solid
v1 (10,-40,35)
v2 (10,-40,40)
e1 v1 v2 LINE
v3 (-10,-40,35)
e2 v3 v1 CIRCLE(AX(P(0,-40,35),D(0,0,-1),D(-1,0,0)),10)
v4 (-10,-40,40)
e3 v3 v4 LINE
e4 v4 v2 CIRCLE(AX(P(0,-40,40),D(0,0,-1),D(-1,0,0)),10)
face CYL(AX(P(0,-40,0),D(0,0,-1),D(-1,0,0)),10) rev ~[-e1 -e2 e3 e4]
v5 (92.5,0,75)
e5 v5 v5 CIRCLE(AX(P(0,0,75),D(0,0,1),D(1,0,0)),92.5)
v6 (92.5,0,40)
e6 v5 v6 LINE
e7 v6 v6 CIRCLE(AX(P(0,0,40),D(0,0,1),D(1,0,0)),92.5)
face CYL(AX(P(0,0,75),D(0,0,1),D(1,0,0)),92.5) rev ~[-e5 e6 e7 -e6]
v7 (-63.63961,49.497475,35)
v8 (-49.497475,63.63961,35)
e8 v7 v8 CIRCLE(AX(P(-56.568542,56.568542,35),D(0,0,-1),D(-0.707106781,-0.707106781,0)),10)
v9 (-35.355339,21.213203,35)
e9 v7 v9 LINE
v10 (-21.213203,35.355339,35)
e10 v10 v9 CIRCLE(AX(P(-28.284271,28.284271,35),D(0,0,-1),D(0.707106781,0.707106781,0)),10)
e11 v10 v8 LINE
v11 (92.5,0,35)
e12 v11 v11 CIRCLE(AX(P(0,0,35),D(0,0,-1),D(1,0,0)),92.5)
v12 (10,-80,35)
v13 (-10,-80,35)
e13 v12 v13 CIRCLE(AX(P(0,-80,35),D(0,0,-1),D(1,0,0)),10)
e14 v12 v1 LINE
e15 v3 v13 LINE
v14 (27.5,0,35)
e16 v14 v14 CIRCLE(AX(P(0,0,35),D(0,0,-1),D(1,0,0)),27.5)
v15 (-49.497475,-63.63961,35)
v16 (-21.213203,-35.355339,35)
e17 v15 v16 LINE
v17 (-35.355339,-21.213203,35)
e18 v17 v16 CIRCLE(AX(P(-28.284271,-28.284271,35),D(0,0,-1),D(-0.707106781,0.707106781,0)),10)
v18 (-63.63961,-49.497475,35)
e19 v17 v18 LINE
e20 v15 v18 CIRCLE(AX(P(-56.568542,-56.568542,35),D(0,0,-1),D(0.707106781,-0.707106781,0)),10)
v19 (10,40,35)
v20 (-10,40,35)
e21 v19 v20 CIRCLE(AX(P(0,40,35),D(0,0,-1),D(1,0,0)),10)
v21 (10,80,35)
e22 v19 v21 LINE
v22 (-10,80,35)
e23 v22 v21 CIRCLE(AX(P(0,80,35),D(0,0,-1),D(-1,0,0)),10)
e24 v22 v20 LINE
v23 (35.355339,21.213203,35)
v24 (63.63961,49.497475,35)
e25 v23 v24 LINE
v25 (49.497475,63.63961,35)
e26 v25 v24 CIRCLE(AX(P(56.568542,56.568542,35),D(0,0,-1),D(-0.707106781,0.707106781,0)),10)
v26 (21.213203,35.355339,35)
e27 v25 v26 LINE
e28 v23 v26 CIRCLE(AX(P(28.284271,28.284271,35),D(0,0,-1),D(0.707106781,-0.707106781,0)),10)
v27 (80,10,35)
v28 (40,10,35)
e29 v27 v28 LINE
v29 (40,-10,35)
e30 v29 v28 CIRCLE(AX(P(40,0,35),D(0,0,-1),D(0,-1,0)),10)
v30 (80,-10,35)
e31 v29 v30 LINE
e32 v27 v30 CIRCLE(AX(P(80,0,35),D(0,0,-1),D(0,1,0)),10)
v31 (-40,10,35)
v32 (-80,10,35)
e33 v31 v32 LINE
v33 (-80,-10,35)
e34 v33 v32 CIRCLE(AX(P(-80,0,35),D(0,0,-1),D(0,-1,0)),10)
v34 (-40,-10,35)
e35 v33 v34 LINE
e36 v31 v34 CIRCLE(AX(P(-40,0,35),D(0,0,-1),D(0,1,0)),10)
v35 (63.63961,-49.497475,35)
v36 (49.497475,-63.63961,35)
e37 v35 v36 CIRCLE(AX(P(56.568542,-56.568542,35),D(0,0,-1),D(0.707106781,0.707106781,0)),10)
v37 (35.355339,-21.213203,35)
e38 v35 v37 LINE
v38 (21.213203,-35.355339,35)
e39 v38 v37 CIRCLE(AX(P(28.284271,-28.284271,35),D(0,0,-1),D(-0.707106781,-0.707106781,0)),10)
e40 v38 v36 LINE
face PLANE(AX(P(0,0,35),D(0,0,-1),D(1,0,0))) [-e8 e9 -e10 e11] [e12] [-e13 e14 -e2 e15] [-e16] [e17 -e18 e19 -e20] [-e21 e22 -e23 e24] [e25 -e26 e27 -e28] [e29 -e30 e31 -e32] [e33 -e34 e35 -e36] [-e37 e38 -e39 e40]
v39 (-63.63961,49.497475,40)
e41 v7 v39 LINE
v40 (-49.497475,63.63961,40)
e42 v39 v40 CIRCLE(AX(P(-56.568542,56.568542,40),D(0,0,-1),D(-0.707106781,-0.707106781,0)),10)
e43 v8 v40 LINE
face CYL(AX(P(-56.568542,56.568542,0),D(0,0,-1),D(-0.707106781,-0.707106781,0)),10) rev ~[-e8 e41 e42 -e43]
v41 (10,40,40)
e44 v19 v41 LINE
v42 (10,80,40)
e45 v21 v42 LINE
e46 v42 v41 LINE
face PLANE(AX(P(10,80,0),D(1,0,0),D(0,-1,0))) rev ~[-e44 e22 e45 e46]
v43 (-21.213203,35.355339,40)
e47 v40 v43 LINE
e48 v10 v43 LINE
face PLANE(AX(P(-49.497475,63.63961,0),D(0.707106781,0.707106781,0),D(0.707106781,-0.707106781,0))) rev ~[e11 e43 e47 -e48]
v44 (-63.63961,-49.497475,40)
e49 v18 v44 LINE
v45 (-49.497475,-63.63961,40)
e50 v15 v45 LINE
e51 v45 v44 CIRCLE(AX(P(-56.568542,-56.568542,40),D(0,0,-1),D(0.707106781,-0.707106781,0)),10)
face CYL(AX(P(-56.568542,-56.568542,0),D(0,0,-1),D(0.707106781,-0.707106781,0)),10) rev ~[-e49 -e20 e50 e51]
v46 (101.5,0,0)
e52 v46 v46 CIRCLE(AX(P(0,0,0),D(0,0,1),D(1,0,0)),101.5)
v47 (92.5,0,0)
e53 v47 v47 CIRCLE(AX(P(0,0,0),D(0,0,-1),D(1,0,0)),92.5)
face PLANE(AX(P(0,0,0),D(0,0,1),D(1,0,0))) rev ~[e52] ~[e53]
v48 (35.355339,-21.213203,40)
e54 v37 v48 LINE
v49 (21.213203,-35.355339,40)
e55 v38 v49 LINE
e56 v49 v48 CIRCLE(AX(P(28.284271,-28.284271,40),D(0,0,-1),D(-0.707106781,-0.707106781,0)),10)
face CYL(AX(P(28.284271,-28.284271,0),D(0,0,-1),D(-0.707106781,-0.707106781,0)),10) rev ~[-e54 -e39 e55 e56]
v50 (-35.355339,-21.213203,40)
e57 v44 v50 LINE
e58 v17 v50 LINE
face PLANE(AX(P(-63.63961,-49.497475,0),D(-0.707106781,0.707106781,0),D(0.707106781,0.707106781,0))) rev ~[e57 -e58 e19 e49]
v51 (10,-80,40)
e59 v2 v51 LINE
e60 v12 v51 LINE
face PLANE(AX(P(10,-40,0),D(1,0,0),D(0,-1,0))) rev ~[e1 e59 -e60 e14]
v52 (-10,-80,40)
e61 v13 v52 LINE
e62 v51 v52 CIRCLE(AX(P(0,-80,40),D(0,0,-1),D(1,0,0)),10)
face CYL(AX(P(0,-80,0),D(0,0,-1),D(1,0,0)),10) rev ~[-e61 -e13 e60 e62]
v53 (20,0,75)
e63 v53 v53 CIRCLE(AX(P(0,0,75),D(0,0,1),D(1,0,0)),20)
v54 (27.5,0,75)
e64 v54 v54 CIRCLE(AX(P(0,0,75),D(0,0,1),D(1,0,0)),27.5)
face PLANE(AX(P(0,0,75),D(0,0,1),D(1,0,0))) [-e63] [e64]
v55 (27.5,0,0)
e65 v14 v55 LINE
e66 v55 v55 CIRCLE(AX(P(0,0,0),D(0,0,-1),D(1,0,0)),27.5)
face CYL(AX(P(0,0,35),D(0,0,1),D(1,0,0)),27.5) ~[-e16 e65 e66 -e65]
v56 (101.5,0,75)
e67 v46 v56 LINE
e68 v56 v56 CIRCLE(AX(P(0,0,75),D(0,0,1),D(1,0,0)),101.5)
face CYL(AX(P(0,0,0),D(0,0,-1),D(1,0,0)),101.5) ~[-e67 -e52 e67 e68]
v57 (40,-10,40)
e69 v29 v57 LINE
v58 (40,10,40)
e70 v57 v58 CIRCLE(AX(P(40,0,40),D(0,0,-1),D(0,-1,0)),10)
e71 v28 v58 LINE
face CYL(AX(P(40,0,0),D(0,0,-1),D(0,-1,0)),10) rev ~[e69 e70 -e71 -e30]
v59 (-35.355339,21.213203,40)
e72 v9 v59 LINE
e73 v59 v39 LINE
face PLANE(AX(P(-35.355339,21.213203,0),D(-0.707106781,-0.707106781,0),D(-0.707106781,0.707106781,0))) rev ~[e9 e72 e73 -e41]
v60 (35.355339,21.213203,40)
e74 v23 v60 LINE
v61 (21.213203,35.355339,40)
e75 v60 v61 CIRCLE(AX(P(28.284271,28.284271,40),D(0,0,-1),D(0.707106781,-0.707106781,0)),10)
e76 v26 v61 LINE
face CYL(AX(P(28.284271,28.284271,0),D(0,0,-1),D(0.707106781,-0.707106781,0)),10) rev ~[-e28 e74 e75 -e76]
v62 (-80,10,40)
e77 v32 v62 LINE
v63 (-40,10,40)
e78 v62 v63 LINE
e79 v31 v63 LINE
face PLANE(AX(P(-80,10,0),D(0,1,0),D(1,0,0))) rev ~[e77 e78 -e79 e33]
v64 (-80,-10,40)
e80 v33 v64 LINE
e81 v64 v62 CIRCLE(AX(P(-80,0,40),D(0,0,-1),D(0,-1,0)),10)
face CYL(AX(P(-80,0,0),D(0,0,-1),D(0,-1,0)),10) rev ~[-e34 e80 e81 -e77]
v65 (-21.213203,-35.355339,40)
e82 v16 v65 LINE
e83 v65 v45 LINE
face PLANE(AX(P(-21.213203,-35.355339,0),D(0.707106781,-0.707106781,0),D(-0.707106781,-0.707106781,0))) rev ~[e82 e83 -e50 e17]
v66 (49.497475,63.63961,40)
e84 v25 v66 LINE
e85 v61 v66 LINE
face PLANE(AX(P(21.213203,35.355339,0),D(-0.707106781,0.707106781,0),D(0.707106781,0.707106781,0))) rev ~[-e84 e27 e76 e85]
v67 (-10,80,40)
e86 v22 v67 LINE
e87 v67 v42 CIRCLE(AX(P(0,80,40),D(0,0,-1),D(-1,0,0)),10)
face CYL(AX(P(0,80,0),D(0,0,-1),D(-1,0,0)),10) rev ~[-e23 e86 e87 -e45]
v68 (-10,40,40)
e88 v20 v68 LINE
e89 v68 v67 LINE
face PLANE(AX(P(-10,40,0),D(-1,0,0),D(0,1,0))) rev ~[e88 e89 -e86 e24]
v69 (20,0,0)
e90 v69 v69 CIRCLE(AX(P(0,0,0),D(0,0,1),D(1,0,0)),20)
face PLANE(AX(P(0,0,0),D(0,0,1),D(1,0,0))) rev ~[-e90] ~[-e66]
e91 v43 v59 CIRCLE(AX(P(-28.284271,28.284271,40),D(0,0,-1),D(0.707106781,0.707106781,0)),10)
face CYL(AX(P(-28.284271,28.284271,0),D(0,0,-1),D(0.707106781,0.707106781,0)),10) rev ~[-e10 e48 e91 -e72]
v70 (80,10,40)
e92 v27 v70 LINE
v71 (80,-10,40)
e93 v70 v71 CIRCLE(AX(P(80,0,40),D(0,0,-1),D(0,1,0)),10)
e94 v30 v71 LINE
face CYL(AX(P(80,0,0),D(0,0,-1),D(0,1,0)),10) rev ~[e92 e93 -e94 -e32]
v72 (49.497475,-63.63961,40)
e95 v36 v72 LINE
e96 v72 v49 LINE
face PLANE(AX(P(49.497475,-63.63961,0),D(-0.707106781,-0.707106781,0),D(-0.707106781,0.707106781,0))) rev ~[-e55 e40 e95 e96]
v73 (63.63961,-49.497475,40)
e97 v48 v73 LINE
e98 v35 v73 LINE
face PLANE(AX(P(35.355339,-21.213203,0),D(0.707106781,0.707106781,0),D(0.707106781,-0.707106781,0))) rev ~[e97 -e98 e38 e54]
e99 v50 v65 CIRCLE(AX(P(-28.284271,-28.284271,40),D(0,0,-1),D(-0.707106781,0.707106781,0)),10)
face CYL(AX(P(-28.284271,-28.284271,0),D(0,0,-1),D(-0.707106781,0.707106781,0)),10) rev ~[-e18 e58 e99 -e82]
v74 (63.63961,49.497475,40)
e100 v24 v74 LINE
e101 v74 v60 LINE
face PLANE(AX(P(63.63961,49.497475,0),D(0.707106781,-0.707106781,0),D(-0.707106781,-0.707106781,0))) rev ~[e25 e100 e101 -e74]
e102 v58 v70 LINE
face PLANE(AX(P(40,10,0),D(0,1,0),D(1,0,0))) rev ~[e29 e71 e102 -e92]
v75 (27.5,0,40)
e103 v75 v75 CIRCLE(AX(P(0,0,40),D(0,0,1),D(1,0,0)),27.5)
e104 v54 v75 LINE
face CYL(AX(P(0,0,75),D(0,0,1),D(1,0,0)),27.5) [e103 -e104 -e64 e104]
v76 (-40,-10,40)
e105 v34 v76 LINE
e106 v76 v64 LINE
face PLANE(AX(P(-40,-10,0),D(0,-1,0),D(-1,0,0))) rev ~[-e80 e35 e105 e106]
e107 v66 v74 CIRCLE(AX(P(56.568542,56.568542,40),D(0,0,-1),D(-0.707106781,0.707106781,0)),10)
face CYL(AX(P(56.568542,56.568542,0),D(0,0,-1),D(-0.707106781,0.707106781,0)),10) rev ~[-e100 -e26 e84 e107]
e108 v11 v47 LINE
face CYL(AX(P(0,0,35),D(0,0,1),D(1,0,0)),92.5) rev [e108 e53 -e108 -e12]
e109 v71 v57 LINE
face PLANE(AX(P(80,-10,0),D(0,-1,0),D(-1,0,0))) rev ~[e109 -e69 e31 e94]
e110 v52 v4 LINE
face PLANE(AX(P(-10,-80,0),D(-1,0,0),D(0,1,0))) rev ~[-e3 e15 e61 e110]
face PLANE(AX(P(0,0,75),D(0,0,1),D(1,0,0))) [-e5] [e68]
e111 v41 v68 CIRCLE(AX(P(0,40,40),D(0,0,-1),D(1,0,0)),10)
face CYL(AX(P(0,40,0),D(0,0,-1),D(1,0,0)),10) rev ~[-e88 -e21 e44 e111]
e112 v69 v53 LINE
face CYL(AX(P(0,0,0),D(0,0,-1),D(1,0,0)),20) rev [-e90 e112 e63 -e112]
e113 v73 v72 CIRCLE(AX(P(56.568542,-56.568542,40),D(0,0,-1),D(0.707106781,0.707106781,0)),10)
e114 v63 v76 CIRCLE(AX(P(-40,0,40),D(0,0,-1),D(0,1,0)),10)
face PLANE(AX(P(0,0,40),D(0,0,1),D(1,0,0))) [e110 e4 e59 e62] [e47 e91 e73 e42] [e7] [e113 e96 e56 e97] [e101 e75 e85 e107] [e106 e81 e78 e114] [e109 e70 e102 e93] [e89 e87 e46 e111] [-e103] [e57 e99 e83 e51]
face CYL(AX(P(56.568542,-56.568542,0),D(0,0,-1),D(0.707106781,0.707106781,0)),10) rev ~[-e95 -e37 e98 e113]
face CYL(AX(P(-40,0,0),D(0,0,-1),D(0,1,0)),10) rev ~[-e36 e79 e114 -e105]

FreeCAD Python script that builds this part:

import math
import FreeCAD as App
import Part
import Sketcher
Q = App.Units.Quantity

doc = App.newDocument("Part")
body = doc.addObject("PartDesign::Body", "Body")

sketch1 = body.newObject("Sketcher::SketchObject", "Sketch")
sketch1.AttachmentSupport = (doc.getObject("XY_Plane"), [""])
sketch1.MapMode = "FlatFace"
sketch1.addGeometry(Part.Circle(App.Vector(0, 0, 0), App.Vector(0, 0, 1), 102), False)
sketch1.addGeometry(Part.ArcOfCircle(Part.Circle(App.Vector(-57, -57, 0), App.Vector(0, 0, 1), 10), math.radians(135), math.radians(315)), False)
sketch1.addGeometry(Part.LineSegment(App.Vector(-64, -49, 0), App.Vector(-35, -21, 0)), False)
sketch1.addGeometry(Part.ArcOfCircle(Part.Circle(App.Vector(-28, -28, 0), App.Vector(0, 0, 1), 10), math.radians(-45), math.radians(135)), False)
sketch1.addGeometry(Part.LineSegment(App.Vector(-21, -35, 0), App.Vector(-49, -64, 0)), False)
sketch1.addGeometry(Part.ArcOfCircle(Part.Circle(App.Vector(0, -80, 0), App.Vector(0, 0, 1), 10), math.radians(180), math.radians(360)), False)
sketch1.addGeometry(Part.LineSegment(App.Vector(-10, -80, 0), App.Vector(-10, -40, 0)), False)
sketch1.addGeometry(Part.ArcOfCircle(Part.Circle(App.Vector(0, -40, 0), App.Vector(0, 0, 1), 10), math.radians(0), math.radians(180)), False)
sketch1.addGeometry(Part.LineSegment(App.Vector(10, -40, 0), App.Vector(10, -80, 0)), False)
sketch1.addGeometry(Part.ArcOfCircle(Part.Circle(App.Vector(57, -57, 0), App.Vector(0, 0, 1), 10), math.radians(-135), math.radians(45)), False)
sketch1.addGeometry(Part.LineSegment(App.Vector(49, -64, 0), App.Vector(21, -35, 0)), False)
sketch1.addGeometry(Part.ArcOfCircle(Part.Circle(App.Vector(28, -28, 0), App.Vector(0, 0, 1), 10), math.radians(45), math.radians(225)), False)
sketch1.addGeometry(Part.LineSegment(App.Vector(35, -21, 0), App.Vector(64, -49, 0)), False)
sketch1.addGeometry(Part.ArcOfCircle(Part.Circle(App.Vector(-80, 0, 0), App.Vector(0, 0, 1), 10), math.radians(90), math.radians(270)), False)
sketch1.addGeometry(Part.LineSegment(App.Vector(-80, 10, 0), App.Vector(-40, 10, 0)), False)
sketch1.addGeometry(Part.ArcOfCircle(Part.Circle(App.Vector(-40, 0, 0), App.Vector(0, 0, 1), 10), math.radians(-90), math.radians(90)), False)
sketch1.addGeometry(Part.LineSegment(App.Vector(-40, -10, 0), App.Vector(-80, -10, 0)), False)
sketch1.addGeometry(Part.ArcOfCircle(Part.Circle(App.Vector(-57, 57, 0), App.Vector(0, 0, 1), 10), math.radians(45), math.radians(225)), False)
sketch1.addGeometry(Part.LineSegment(App.Vector(-49, 64, 0), App.Vector(-21, 35, 0)), False)
sketch1.addGeometry(Part.ArcOfCircle(Part.Circle(App.Vector(-28, 28, 0), App.Vector(0, 0, 1), 10), math.radians(-135), math.radians(45)), False)
sketch1.addGeometry(Part.LineSegment(App.Vector(-35, 21, 0), App.Vector(-64, 49, 0)), False)
sketch1.addGeometry(Part.Circle(App.Vector(0, 0, 0), App.Vector(0, 0, 1), 20), False)
sketch1.addGeometry(Part.ArcOfCircle(Part.Circle(App.Vector(57, 57, 0), App.Vector(0, 0, 1), 10), math.radians(-45), math.radians(135)), False)
sketch1.addGeometry(Part.LineSegment(App.Vector(64, 49, 0), App.Vector(35, 21, 0)), False)
sketch1.addGeometry(Part.ArcOfCircle(Part.Circle(App.Vector(28, 28, 0), App.Vector(0, 0, 1), 10), math.radians(135), math.radians(315)), False)
sketch1.addGeometry(Part.LineSegment(App.Vector(21, 35, 0), App.Vector(49, 64, 0)), False)
sketch1.addGeometry(Part.ArcOfCircle(Part.Circle(App.Vector(80, 0, 0), App.Vector(0, 0, 1), 10), math.radians(-90), math.radians(90)), False)
sketch1.addGeometry(Part.LineSegment(App.Vector(80, -10, 0), App.Vector(40, -10, 0)), False)
sketch1.addGeometry(Part.ArcOfCircle(Part.Circle(App.Vector(40, 0, 0), App.Vector(0, 0, 1), 10), math.radians(90), math.radians(270)), False)
sketch1.addGeometry(Part.LineSegment(App.Vector(40, 10, 0), App.Vector(80, 10, 0)), False)
sketch1.addGeometry(Part.ArcOfCircle(Part.Circle(App.Vector(0, 80, 0), App.Vector(0, 0, 1), 10), math.radians(0), math.radians(180)), False)
sketch1.addGeometry(Part.LineSegment(App.Vector(10, 80, 0), App.Vector(10, 40, 0)), False)
sketch1.addGeometry(Part.ArcOfCircle(Part.Circle(App.Vector(0, 40, 0), App.Vector(0, 0, 1), 10), math.radians(180), math.radians(360)), False)
sketch1.addGeometry(Part.LineSegment(App.Vector(-10, 40, 0), App.Vector(-10, 80, 0)), False)
sketch1.addConstraint(Sketcher.Constraint("Tangent", 1, 1, 2, 1))
sketch1.addConstraint(Sketcher.Constraint("Tangent", 2, 2, 3, 2))
sketch1.addConstraint(Sketcher.Constraint("Tangent", 3, 1, 4, 1))
sketch1.addConstraint(Sketcher.Constraint("Tangent", 4, 2, 1, 2))
sketch1.addConstraint(Sketcher.Constraint("Tangent", 5, 1, 6, 1))
sketch1.addConstraint(Sketcher.Constraint("Tangent", 6, 2, 7, 2))
sketch1.addConstraint(Sketcher.Constraint("Tangent", 7, 1, 8, 1))
sketch1.addConstraint(Sketcher.Constraint("Tangent", 8, 2, 5, 2))
sketch1.addConstraint(Sketcher.Constraint("Tangent", 9, 1, 10, 1))
sketch1.addConstraint(Sketcher.Constraint("Tangent", 10, 2, 11, 2))
sketch1.addConstraint(Sketcher.Constraint("Tangent", 11, 1, 12, 1))
sketch1.addConstraint(Sketcher.Constraint("Tangent", 12, 2, 9, 2))
sketch1.addConstraint(Sketcher.Constraint("Tangent", 13, 1, 14, 1))
sketch1.addConstraint(Sketcher.Constraint("Tangent", 14, 2, 15, 2))
sketch1.addConstraint(Sketcher.Constraint("Tangent", 15, 1, 16, 1))
sketch1.addConstraint(Sketcher.Constraint("Tangent", 16, 2, 13, 2))
sketch1.addConstraint(Sketcher.Constraint("Tangent", 17, 1, 18, 1))
sketch1.addConstraint(Sketcher.Constraint("Tangent", 18, 2, 19, 2))
sketch1.addConstraint(Sketcher.Constraint("Tangent", 19, 1, 20, 1))
sketch1.addConstraint(Sketcher.Constraint("Tangent", 20, 2, 17, 2))
sketch1.addConstraint(Sketcher.Constraint("Tangent", 22, 1, 23, 1))
sketch1.addConstraint(Sketcher.Constraint("Tangent", 23, 2, 24, 2))
sketch1.addConstraint(Sketcher.Constraint("Tangent", 24, 1, 25, 1))
sketch1.addConstraint(Sketcher.Constraint("Tangent", 25, 2, 22, 2))
sketch1.addConstraint(Sketcher.Constraint("Tangent", 26, 1, 27, 1))
sketch1.addConstraint(Sketcher.Constraint("Tangent", 27, 2, 28, 2))
sketch1.addConstraint(Sketcher.Constraint("Tangent", 28, 1, 29, 1))
sketch1.addConstraint(Sketcher.Constraint("Tangent", 29, 2, 26, 2))
sketch1.addConstraint(Sketcher.Constraint("Tangent", 30, 1, 31, 1))
sketch1.addConstraint(Sketcher.Constraint("Tangent", 31, 2, 32, 2))
sketch1.addConstraint(Sketcher.Constraint("Tangent", 32, 1, 33, 1))
sketch1.addConstraint(Sketcher.Constraint("Tangent", 33, 2, 30, 2))
sketch1.addConstraint(Sketcher.Constraint("Vertical", 6))
sketch1.addConstraint(Sketcher.Constraint("Vertical", 8))
sketch1.addConstraint(Sketcher.Constraint("Horizontal", 14))
sketch1.addConstraint(Sketcher.Constraint("Horizontal", 16))
sketch1.addConstraint(Sketcher.Constraint("Horizontal", 27))
sketch1.addConstraint(Sketcher.Constraint("Horizontal", 29))
sketch1.addConstraint(Sketcher.Constraint("Vertical", 31))
sketch1.addConstraint(Sketcher.Constraint("Vertical", 33))
sketch1.addConstraint(Sketcher.Constraint("Coincident", 0, 3, -1, 1))
sketch1.addConstraint(Sketcher.Constraint("Coincident", 21, 3, -1, 1))
sketch1.addConstraint(Sketcher.Constraint("Equal", 1, 3))
sketch1.addConstraint(Sketcher.Constraint("Equal", 3, 5))
sketch1.addConstraint(Sketcher.Constraint("Equal", 7, 9))
sketch1.addConstraint(Sketcher.Constraint("Equal", 9, 11))
sketch1.addConstraint(Sketcher.Constraint("Equal", 11, 13))
sketch1.addConstraint(Sketcher.Constraint("Equal", 15, 17))
sketch1.addConstraint(Sketcher.Constraint("Equal", 17, 19))
sketch1.addConstraint(Sketcher.Constraint("Equal", 19, 22))
sketch1.addConstraint(Sketcher.Constraint("Equal", 22, 24))
sketch1.addConstraint(Sketcher.Constraint("Equal", 24, 26))
sketch1.addConstraint(Sketcher.Constraint("Equal", 28, 30))
sketch1.addConstraint(Sketcher.Constraint("Symmetric", 9, 3, 17, 3, -1, 1))
sketch1.addConstraint(Sketcher.Constraint("Symmetric", 11, 3, 19, 3, -1, 1))
sketch1.addConstraint(Sketcher.Constraint("Symmetric", 1, 3, 22, 3, -1, 1))
sketch1.addConstraint(Sketcher.Constraint("Symmetric", 3, 3, 24, 3, -1, 1))
sketch1.addConstraint(Sketcher.Constraint("Symmetric", 13, 3, 26, 3, -1, 1))
sketch1.addConstraint(Sketcher.Constraint("Symmetric", 5, 3, 30, 3, -1, 1))
sketch1.addConstraint(Sketcher.Constraint("Symmetric", 1, 3, 9, 3, -2))
sketch1.addConstraint(Sketcher.Constraint("Symmetric", 3, 3, 11, 3, -2))
sketch1.addConstraint(Sketcher.Constraint("Symmetric", 15, 3, 28, 3, -2))
sketch1.addConstraint(Sketcher.Constraint("Symmetric", 7, 3, 32, 3, -1))
sketch1.addConstraint(Sketcher.Constraint("Perpendicular", 4, 10))
sketch1.addConstraint(Sketcher.Constraint("Equal", 29, 6))
sketch1.addConstraint(Sketcher.Constraint("Diameter", 0, Q("203 mm")))
sketch1.addConstraint(Sketcher.Constraint("Diameter", 21, Q("40 mm")))
sketch1.addConstraint(Sketcher.Constraint("Radius", 1, Q("10 mm")))
sketch1.addConstraint(Sketcher.Constraint("DistanceX", 14, 1, 14, 2, Q("40 mm")))
sketch1.addConstraint(Sketcher.Constraint("Distance", 2, Q("40 mm")))
sketch1.addConstraint(Sketcher.Constraint("DistanceY", 5, 3, -1, 1, Q("80 mm")))
sketch1.addConstraint(Sketcher.Constraint("DistanceX", 13, 3, -1, 1, Q("80 mm")))
sketch1.addConstraint(Sketcher.Constraint("DistanceX", 3, 3, -1, 1, Q("28.284271 mm")))
sketch1.addConstraint(Sketcher.Constraint("DistanceY", 3, 3, -1, 1, Q("28.284271 mm")))
pad1 = body.newObject("PartDesign::Pad", "Pad")
pad1.Profile = sketch1
pad1.Length = 75

sketch2 = body.newObject("Sketcher::SketchObject", "Sketch001")
sketch2.AttachmentSupport = (doc.getObject("XY_Plane"), [""])
sketch2.MapMode = "FlatFace"
sketch2.AttachmentOffset = App.Placement(App.Vector(0, 0, 75), App.Rotation())
sketch2.addGeometry(Part.Circle(App.Vector(0, 0, 0), App.Vector(0, 0, 1), 92), False)
sketch2.addGeometry(Part.Circle(App.Vector(0, 0, 0), App.Vector(0, 0, 1), 28), False)
sketch2.addConstraint(Sketcher.Constraint("Coincident", 0, 3, -1, 1))
sketch2.addConstraint(Sketcher.Constraint("Coincident", 1, 3, -1, 1))
sketch2.addConstraint(Sketcher.Constraint("Diameter", 0, Q("185 mm")))
sketch2.addConstraint(Sketcher.Constraint("Diameter", 1, Q("55 mm")))
pocket1 = body.newObject("PartDesign::Pocket", "Pocket")
pocket1.Profile = sketch2
pocket1.Length = 35

sketch3 = body.newObject("Sketcher::SketchObject", "Sketch002")
sketch3.AttachmentSupport = (doc.getObject("XY_Plane"), [""])
sketch3.MapMode = "FlatFace"
sketch3.AttachmentOffset = App.Placement(App.Vector(0, 0, 35), App.Rotation())
sketch3.addGeometry(Part.Circle(App.Vector(0, 0, 0), App.Vector(0, 0, 1), 92), False)
sketch3.addGeometry(Part.Circle(App.Vector(0, 0, 0), App.Vector(0, 0, 1), 28), False)
sketch3.addConstraint(Sketcher.Constraint("Coincident", 0, 3, -1, 1))
sketch3.addConstraint(Sketcher.Constraint("Coincident", 1, 3, -1, 1))
sketch3.addConstraint(Sketcher.Constraint("Diameter", 0, Q("185 mm")))
sketch3.addConstraint(Sketcher.Constraint("Diameter", 1, Q("55 mm")))
pocket2 = body.newObject("PartDesign::Pocket", "Pocket001")
pocket2.Profile = sketch3
pocket2.Length = 35

doc.recompute()
